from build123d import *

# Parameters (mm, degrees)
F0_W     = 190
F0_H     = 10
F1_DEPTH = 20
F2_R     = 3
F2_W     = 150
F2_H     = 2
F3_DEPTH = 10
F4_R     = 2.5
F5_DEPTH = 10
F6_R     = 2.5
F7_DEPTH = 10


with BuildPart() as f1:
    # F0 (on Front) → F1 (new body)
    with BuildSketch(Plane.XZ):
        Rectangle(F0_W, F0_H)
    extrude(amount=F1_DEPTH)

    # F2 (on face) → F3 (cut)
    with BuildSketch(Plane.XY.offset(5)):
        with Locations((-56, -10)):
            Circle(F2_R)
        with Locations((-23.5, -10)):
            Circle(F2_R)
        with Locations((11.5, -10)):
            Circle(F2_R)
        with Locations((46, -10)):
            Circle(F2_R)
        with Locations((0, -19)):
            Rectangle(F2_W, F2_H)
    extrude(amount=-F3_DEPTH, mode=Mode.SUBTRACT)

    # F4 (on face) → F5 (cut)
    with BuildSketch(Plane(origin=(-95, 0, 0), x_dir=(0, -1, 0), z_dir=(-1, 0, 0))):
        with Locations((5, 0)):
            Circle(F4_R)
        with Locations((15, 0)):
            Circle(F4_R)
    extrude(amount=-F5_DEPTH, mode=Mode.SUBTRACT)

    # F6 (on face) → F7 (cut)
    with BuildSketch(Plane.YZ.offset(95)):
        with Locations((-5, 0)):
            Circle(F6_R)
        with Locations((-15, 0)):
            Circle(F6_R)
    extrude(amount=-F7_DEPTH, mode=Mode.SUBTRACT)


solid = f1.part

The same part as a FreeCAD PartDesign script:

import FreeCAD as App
import Part
import Sketcher
from FreeCAD import Vector

doc = App.newDocument("Part")
body = doc.addObject("PartDesign::Body", "Body")

# Sketch on XZ plane
sketch1 = body.newObject("Sketcher::SketchObject", "Sketch")
sketch1.AttachmentSupport = (doc.getObject("XZ_Plane"), [""])
sketch1.MapMode = "FlatFace"
sketch1.addGeometry([
    Part.LineSegment(Vector(-95, 5, 0), Vector(-95, -5, 0)),
    Part.LineSegment(Vector(-95, -5, 0), Vector(95, -5, 0)),
    Part.LineSegment(Vector(95, -5, 0), Vector(95, 5, 0)),
    Part.LineSegment(Vector(95, 5, 0), Vector(-95, 5, 0)),
], False)
sketch1.addConstraint([
    Sketcher.Constraint("Coincident", 0, 2, 1, 1),
    Sketcher.Constraint("Coincident", 1, 2, 2, 1),
    Sketcher.Constraint("Coincident", 2, 2, 3, 1),
    Sketcher.Constraint("Coincident", 3, 2, 0, 1),
    Sketcher.Constraint("Vertical", 0),
    Sketcher.Constraint("Horizontal", 1),
    Sketcher.Constraint("Vertical", 2),
    Sketcher.Constraint("Horizontal", 3),
    Sketcher.Constraint("Symmetric", 0, 2, 2, 2, -1, 1),
    Sketcher.Constraint("DistanceX", 1, 1, 1, 2, 190.0),
    Sketcher.Constraint("DistanceY", 0, 2, 0, 1, 10.0),
])
pad1 = body.newObject("PartDesign::Pad", "Pad")
pad1.Profile = sketch1
pad1.Length = 20

# Sketch on XY plane
sketch2 = body.newObject("Sketcher::SketchObject", "Sketch001")
sketch2.AttachmentSupport = (doc.getObject("XY_Plane"), [""])
sketch2.MapMode = "FlatFace"
sketch2.AttachmentOffset = App.Placement(Vector(0, 0, 5), App.Rotation())
sketch2.addGeometry([
    Part.Circle(Vector(-56, -10, 0), Vector(0, 0, 1), 3),  # 0
    Part.Circle(Vector(-23.5, -10, 0), Vector(0, 0, 1), 3),  # 1
    Part.Circle(Vector(11.5, -10, 0), Vector(0, 0, 1), 3),  # 2
    Part.Circle(Vector(46, -10, 0), Vector(0, 0, 1), 3),  # 3
    Part.LineSegment(Vector(-75, -18, 0), Vector(-75, -20, 0)),  # 4
    Part.LineSegment(Vector(-75, -20, 0), Vector(75, -20, 0)),  # 5
    Part.LineSegment(Vector(75, -20, 0), Vector(75, -18, 0)),  # 6
    Part.LineSegment(Vector(75, -18, 0), Vector(-75, -18, 0)),  # 7
], False)
sketch2.addConstraint([
    Sketcher.Constraint("Coincident", 4, 2, 5, 1),
    Sketcher.Constraint("Coincident", 5, 2, 6, 1),
    Sketcher.Constraint("Coincident", 6, 2, 7, 1),
    Sketcher.Constraint("Coincident", 7, 2, 4, 1),
    Sketcher.Constraint("Vertical", 4),
    Sketcher.Constraint("Horizontal", 5),
    Sketcher.Constraint("Vertical", 6),
    Sketcher.Constraint("Horizontal", 7),
    Sketcher.Constraint("Equal", 0, 1),
    Sketcher.Constraint("Equal", 1, 2),
    Sketcher.Constraint("Equal", 2, 3),
    Sketcher.Constraint("Horizontal", 0, 3, 1, 3),
    Sketcher.Constraint("Horizontal", 1, 3, 2, 3),
    Sketcher.Constraint("Horizontal", 2, 3, 3, 3),
    Sketcher.Constraint("Diameter", 0, 6.0),
    Sketcher.Constraint("DistanceX", 5, 1, 5, 2, 150.0),
    Sketcher.Constraint("DistanceY", 4, 2, 4, 1, 2.0),
    Sketcher.Constraint("DistanceX", 0, 3, -1, 1, 56.0),
    Sketcher.Constraint("DistanceY", 0, 3, -1, 1, 10.0),
    Sketcher.Constraint("DistanceX", -1, 1, 3, 3, 46.0),
    Sketcher.Constraint("DistanceX", 4, 2, -1, 1, 75.0),
    Sketcher.Constraint("DistanceY", 4, 2, -1, 1, 20.0),
    Sketcher.Constraint("DistanceX", 1, 3, 2, 3, 35.0),
    Sketcher.Constraint("DistanceX", 1, 3, -1, 1, 23.5),
])
pocket1 = body.newObject("PartDesign::Pocket", "Pocket")
pocket1.Profile = sketch2
pocket1.Length = 10

# Sketch on YZ plane
sketch3 = body.newObject("Sketcher::SketchObject", "Sketch002")
sketch3.AttachmentSupport = (doc.getObject("YZ_Plane"), [""])
sketch3.MapMode = "FlatFace"
sketch3.AttachmentOffset = App.Placement(Vector(0, 0, -95), App.Rotation())
sketch3.addGeometry([
    Part.Circle(Vector(-5, 0, 0), Vector(0, 0, 1), 2.5),
    Part.Circle(Vector(-15, 0, 0), Vector(0, 0, 1), 2.5),
], False)
sketch3.addConstraint([
    Sketcher.Constraint("Equal", 0, 1),
    Sketcher.Constraint("PointOnObject", 0, 3, -1),
    Sketcher.Constraint("PointOnObject", 1, 3, -1),
    Sketcher.Constraint("Diameter", 0, 5.0),
    Sketcher.Constraint("DistanceX", 0, 3, -1, 1, 5.0),
    Sketcher.Constraint("DistanceX", 1, 3, -1, 1, 15.0),
])
pocket2 = body.newObject("PartDesign::Pocket", "Pocket001")
pocket2.Profile = sketch3
pocket2.Length = 10
pocket2.Reversed = True

# Sketch on YZ plane
sketch4 = body.newObject("Sketcher::SketchObject", "Sketch003")
sketch4.AttachmentSupport = (doc.getObject("YZ_Plane"), [""])
sketch4.MapMode = "FlatFace"
sketch4.AttachmentOffset = App.Placement(Vector(0, 0, 95), App.Rotation())
sketch4.addGeometry([
    Part.Circle(Vector(-5, 0, 0), Vector(0, 0, 1), 2.5),
    Part.Circle(Vector(-15, 0, 0), Vector(0, 0, 1), 2.5),
], False)
sketch4.addConstraint([
    Sketcher.Constraint("Equal", 0, 1),
    Sketcher.Constraint("PointOnObject", 0, 3, -1),
    Sketcher.Constraint("PointOnObject", 1, 3, -1),
    Sketcher.Constraint("Diameter", 0, 5.0),
    Sketcher.Constraint("DistanceX", 0, 3, -1, 1, 5.0),
    Sketcher.Constraint("DistanceX", 1, 3, -1, 1, 15.0),
])
pocket3 = body.newObject("PartDesign::Pocket", "Pocket002")
pocket3.Profile = sketch4
pocket3.Length = 10

doc.recompute()
